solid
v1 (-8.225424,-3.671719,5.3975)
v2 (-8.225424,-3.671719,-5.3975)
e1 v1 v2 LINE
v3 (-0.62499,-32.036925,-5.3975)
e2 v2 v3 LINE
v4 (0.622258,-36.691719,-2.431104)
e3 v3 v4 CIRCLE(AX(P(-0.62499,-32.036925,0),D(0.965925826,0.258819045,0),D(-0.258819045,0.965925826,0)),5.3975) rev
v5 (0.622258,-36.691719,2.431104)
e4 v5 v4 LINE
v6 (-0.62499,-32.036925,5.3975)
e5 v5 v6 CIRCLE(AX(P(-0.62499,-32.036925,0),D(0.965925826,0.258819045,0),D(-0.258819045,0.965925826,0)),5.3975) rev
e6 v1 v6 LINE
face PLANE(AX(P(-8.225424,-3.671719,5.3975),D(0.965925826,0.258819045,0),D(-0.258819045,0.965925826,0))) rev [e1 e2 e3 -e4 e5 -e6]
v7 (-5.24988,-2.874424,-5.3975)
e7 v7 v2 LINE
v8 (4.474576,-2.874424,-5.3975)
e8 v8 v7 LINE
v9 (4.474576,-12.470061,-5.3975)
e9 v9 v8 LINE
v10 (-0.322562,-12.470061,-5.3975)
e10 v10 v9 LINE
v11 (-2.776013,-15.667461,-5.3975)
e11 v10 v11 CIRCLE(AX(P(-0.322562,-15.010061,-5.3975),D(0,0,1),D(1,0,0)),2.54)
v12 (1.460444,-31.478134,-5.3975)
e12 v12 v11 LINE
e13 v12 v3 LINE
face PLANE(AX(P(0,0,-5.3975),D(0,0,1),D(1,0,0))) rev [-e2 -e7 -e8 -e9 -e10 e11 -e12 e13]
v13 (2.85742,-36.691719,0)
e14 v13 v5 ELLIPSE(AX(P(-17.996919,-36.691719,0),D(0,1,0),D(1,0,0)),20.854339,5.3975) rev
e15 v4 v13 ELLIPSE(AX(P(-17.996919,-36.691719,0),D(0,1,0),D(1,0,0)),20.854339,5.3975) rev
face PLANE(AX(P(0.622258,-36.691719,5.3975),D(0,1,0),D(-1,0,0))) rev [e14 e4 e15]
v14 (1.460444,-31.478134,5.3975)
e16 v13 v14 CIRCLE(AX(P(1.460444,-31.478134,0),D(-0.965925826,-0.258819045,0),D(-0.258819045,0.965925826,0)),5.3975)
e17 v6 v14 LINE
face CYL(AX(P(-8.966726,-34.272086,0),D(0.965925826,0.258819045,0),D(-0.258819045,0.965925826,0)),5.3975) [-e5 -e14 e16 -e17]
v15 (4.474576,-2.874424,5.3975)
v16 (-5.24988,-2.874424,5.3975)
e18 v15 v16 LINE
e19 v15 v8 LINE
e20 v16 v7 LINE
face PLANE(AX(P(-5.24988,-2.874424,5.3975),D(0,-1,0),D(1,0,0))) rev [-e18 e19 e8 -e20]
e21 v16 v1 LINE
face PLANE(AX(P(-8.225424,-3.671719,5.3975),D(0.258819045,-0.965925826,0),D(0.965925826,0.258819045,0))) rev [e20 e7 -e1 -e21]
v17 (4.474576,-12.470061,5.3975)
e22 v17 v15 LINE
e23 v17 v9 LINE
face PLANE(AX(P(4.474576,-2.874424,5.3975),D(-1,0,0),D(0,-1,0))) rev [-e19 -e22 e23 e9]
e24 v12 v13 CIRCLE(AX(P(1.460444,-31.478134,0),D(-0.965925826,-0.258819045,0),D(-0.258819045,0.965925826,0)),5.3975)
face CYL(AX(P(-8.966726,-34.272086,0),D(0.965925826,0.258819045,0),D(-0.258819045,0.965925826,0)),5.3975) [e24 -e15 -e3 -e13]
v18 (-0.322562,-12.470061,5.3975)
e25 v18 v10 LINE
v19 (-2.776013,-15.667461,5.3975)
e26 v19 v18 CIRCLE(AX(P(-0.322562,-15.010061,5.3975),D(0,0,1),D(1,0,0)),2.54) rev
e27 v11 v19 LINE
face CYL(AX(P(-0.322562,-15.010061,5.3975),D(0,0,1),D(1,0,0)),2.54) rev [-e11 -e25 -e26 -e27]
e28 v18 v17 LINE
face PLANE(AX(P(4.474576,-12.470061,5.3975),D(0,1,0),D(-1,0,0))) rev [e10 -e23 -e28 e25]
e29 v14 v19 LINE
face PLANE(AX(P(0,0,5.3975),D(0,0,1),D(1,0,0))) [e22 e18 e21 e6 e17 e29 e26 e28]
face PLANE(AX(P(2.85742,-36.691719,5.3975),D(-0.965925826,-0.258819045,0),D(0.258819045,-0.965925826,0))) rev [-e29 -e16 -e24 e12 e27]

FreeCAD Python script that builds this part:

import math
import FreeCAD as App
import Part
import Sketcher
from FreeCAD import Vector
Q = App.Units.Quantity


def edges_at(feature, points):
    """Names of the edges that pass closest to the given points."""
    edges = feature.Shape.Edges
    near = lambda p: min(range(len(edges)), key=lambda i: edges[i].distToShape(Part.Vertex(*p))[0])
    return sorted({f"Edge{near(p) + 1}" for p in points})


def add_polygon(sketch, points):
    """Adds a closed chain of lines whose ends are joined by coincident constraints."""
    first, n = sketch.GeometryCount, len(points)
    for a, b in zip(points, points[1:] + points[:1]):
        sketch.addGeometry(Part.LineSegment(App.Vector(*a, 0), App.Vector(*b, 0)), False)
    for i in range(n):
        sketch.addConstraint(Sketcher.Constraint("Coincident", first + i, 2, first + (i + 1) % n, 1))

doc = App.newDocument("Part")
body = doc.addObject("PartDesign::Body", "Body")

# Sketch on XY plane
sketch1 = body.newObject("Sketcher::SketchObject", "Sketch")
sketch1.AttachmentSupport = (doc.getObject("XY_Plane"), [""])
sketch1.MapMode = "FlatFace"
add_polygon(sketch1, [(-8.225424, -3.671719), (0.622258, -36.691719), (2.85742, -36.691719), (-3.632754, -12.470061), (4.474576, -12.470061), (4.474576, -2.874424), (-5.24988, -2.874424)])  # lines 0-6
sketch1.addConstraint(Sketcher.Constraint("Horizontal", 1))
sketch1.addConstraint(Sketcher.Constraint("Horizontal", 3))
sketch1.addConstraint(Sketcher.Constraint("Vertical", 4))
sketch1.addConstraint(Sketcher.Constraint("Horizontal", 5))
sketch1.addConstraint(Sketcher.Constraint("Parallel", 0, 2))
sketch1.addConstraint(Sketcher.Constraint("Perpendicular", 2, 6))
sketch1.addConstraint(Sketcher.Constraint("Angle", 0, Q("-75 deg")))
sketch1.addConstraint(Sketcher.Constraint("DistanceX", 6, 2, 4, 2, Q("0.5 in")))
sketch1.addConstraint(Sketcher.Constraint("DistanceY", 0, 2, 6, 2, Q("1.3 in")))
sketch1.addConstraint(Sketcher.Constraint("DistanceX", 1, 1, 1, 2, 2.235161))
sketch1.addConstraint(Sketcher.Constraint("DistanceX", 3, 1, 3, 2, 8.10733))
sketch1.addConstraint(Sketcher.Constraint("DistanceX", 5, 2, 1, 2, 8.107299))
sketch1.addConstraint(Sketcher.Constraint("DistanceX", -1, 1, 0, 2, 0.622258))
sketch1.addConstraint(Sketcher.Constraint("DistanceY", 0, 2, -1, 1, 36.691719))
pad1 = body.newObject("PartDesign::Pad", "Pad")
pad1.Profile = sketch1
pad1.Length = Q("0.425 in")
pad1.Midplane = True
doc.recompute()

fillet = body.newObject("PartDesign::Fillet", "Fillet")
fillet.Base = (pad1, edges_at(pad1, [(-3.633, -12.47, 0)]))
fillet.Radius = Q("0.1 in")

# Sketch on an angled plane
sketch2 = body.newObject("Sketcher::SketchObject", "Sketch001")
sketch2.Placement = App.Placement(Vector(-6.506921, -1.743524, 0), App.Rotation(Vector(0, 0, -1), Vector(-0.258819045, 0.965925826, 0), Vector(0.965925826, 0.258819045, 0), "ZXY"))
sketch2.addGeometry(Part.LineSegment(Vector(-5.3975, -30.783533, 0), Vector(-9.351766, -30.783533, 0)), False)
sketch2.addGeometry(Part.LineSegment(Vector(-9.351766, -30.783533, 0), Vector(-9.351766, -40.742477, 0)), False)
sketch2.addGeometry(Part.LineSegment(Vector(-9.351766, -40.742477, 0), Vector(7.771186, -40.742477, 0)), False)
sketch2.addGeometry(Part.LineSegment(Vector(7.771186, -40.742477, 0), Vector(7.771186, -30.783533, 0)), False)
sketch2.addGeometry(Part.LineSegment(Vector(7.771186, -30.783533, 0), Vector(5.3975, -30.783533, 0)), False)
sketch2.addGeometry(Part.ArcOfCircle(Part.Circle(Vector(0, -30.783533, 0), Vector(0, 0, 1), 5.3975), math.radians(180), math.radians(360)), False)
sketch2.addConstraint(Sketcher.Constraint("Coincident", 0, 2, 1, 1))
sketch2.addConstraint(Sketcher.Constraint("Coincident", 1, 2, 2, 1))
sketch2.addConstraint(Sketcher.Constraint("Coincident", 2, 2, 3, 1))
sketch2.addConstraint(Sketcher.Constraint("Coincident", 3, 2, 4, 1))
sketch2.addConstraint(Sketcher.Constraint("Coincident", 4, 2, 5, 2))
sketch2.addConstraint(Sketcher.Constraint("Coincident", 5, 1, 0, 1))
sketch2.addConstraint(Sketcher.Constraint("Horizontal", 0))
sketch2.addConstraint(Sketcher.Constraint("Vertical", 1))
sketch2.addConstraint(Sketcher.Constraint("Horizontal", 2))
sketch2.addConstraint(Sketcher.Constraint("Vertical", 3))
sketch2.addConstraint(Sketcher.Constraint("Horizontal", 4))
sketch2.addConstraint(Sketcher.Constraint("Symmetric", 4, 2, 5, 1, -2))
sketch2.addConstraint(Sketcher.Constraint("Horizontal", 5, 3, 0, 2))
sketch2.addConstraint(Sketcher.Constraint("Radius", 5, Q("0.2125 in")))
sketch2.addConstraint(Sketcher.Constraint("DistanceX", 2, 1, 2, 2, 17.122952))
sketch2.addConstraint(Sketcher.Constraint("DistanceX", 0, 2, 0, 1, 3.954266))
sketch2.addConstraint(Sketcher.Constraint("DistanceY", 1, 2, 1, 1, 9.958944))
sketch2.addConstraint(Sketcher.Constraint("DistanceY", 5, 3, -1, 1, 30.783533))
pocket1 = body.newObject("PartDesign::Pocket", "Pocket")
pocket1.Profile = sketch2
pocket1.Length = Q("0.425 in")

doc.recompute()
